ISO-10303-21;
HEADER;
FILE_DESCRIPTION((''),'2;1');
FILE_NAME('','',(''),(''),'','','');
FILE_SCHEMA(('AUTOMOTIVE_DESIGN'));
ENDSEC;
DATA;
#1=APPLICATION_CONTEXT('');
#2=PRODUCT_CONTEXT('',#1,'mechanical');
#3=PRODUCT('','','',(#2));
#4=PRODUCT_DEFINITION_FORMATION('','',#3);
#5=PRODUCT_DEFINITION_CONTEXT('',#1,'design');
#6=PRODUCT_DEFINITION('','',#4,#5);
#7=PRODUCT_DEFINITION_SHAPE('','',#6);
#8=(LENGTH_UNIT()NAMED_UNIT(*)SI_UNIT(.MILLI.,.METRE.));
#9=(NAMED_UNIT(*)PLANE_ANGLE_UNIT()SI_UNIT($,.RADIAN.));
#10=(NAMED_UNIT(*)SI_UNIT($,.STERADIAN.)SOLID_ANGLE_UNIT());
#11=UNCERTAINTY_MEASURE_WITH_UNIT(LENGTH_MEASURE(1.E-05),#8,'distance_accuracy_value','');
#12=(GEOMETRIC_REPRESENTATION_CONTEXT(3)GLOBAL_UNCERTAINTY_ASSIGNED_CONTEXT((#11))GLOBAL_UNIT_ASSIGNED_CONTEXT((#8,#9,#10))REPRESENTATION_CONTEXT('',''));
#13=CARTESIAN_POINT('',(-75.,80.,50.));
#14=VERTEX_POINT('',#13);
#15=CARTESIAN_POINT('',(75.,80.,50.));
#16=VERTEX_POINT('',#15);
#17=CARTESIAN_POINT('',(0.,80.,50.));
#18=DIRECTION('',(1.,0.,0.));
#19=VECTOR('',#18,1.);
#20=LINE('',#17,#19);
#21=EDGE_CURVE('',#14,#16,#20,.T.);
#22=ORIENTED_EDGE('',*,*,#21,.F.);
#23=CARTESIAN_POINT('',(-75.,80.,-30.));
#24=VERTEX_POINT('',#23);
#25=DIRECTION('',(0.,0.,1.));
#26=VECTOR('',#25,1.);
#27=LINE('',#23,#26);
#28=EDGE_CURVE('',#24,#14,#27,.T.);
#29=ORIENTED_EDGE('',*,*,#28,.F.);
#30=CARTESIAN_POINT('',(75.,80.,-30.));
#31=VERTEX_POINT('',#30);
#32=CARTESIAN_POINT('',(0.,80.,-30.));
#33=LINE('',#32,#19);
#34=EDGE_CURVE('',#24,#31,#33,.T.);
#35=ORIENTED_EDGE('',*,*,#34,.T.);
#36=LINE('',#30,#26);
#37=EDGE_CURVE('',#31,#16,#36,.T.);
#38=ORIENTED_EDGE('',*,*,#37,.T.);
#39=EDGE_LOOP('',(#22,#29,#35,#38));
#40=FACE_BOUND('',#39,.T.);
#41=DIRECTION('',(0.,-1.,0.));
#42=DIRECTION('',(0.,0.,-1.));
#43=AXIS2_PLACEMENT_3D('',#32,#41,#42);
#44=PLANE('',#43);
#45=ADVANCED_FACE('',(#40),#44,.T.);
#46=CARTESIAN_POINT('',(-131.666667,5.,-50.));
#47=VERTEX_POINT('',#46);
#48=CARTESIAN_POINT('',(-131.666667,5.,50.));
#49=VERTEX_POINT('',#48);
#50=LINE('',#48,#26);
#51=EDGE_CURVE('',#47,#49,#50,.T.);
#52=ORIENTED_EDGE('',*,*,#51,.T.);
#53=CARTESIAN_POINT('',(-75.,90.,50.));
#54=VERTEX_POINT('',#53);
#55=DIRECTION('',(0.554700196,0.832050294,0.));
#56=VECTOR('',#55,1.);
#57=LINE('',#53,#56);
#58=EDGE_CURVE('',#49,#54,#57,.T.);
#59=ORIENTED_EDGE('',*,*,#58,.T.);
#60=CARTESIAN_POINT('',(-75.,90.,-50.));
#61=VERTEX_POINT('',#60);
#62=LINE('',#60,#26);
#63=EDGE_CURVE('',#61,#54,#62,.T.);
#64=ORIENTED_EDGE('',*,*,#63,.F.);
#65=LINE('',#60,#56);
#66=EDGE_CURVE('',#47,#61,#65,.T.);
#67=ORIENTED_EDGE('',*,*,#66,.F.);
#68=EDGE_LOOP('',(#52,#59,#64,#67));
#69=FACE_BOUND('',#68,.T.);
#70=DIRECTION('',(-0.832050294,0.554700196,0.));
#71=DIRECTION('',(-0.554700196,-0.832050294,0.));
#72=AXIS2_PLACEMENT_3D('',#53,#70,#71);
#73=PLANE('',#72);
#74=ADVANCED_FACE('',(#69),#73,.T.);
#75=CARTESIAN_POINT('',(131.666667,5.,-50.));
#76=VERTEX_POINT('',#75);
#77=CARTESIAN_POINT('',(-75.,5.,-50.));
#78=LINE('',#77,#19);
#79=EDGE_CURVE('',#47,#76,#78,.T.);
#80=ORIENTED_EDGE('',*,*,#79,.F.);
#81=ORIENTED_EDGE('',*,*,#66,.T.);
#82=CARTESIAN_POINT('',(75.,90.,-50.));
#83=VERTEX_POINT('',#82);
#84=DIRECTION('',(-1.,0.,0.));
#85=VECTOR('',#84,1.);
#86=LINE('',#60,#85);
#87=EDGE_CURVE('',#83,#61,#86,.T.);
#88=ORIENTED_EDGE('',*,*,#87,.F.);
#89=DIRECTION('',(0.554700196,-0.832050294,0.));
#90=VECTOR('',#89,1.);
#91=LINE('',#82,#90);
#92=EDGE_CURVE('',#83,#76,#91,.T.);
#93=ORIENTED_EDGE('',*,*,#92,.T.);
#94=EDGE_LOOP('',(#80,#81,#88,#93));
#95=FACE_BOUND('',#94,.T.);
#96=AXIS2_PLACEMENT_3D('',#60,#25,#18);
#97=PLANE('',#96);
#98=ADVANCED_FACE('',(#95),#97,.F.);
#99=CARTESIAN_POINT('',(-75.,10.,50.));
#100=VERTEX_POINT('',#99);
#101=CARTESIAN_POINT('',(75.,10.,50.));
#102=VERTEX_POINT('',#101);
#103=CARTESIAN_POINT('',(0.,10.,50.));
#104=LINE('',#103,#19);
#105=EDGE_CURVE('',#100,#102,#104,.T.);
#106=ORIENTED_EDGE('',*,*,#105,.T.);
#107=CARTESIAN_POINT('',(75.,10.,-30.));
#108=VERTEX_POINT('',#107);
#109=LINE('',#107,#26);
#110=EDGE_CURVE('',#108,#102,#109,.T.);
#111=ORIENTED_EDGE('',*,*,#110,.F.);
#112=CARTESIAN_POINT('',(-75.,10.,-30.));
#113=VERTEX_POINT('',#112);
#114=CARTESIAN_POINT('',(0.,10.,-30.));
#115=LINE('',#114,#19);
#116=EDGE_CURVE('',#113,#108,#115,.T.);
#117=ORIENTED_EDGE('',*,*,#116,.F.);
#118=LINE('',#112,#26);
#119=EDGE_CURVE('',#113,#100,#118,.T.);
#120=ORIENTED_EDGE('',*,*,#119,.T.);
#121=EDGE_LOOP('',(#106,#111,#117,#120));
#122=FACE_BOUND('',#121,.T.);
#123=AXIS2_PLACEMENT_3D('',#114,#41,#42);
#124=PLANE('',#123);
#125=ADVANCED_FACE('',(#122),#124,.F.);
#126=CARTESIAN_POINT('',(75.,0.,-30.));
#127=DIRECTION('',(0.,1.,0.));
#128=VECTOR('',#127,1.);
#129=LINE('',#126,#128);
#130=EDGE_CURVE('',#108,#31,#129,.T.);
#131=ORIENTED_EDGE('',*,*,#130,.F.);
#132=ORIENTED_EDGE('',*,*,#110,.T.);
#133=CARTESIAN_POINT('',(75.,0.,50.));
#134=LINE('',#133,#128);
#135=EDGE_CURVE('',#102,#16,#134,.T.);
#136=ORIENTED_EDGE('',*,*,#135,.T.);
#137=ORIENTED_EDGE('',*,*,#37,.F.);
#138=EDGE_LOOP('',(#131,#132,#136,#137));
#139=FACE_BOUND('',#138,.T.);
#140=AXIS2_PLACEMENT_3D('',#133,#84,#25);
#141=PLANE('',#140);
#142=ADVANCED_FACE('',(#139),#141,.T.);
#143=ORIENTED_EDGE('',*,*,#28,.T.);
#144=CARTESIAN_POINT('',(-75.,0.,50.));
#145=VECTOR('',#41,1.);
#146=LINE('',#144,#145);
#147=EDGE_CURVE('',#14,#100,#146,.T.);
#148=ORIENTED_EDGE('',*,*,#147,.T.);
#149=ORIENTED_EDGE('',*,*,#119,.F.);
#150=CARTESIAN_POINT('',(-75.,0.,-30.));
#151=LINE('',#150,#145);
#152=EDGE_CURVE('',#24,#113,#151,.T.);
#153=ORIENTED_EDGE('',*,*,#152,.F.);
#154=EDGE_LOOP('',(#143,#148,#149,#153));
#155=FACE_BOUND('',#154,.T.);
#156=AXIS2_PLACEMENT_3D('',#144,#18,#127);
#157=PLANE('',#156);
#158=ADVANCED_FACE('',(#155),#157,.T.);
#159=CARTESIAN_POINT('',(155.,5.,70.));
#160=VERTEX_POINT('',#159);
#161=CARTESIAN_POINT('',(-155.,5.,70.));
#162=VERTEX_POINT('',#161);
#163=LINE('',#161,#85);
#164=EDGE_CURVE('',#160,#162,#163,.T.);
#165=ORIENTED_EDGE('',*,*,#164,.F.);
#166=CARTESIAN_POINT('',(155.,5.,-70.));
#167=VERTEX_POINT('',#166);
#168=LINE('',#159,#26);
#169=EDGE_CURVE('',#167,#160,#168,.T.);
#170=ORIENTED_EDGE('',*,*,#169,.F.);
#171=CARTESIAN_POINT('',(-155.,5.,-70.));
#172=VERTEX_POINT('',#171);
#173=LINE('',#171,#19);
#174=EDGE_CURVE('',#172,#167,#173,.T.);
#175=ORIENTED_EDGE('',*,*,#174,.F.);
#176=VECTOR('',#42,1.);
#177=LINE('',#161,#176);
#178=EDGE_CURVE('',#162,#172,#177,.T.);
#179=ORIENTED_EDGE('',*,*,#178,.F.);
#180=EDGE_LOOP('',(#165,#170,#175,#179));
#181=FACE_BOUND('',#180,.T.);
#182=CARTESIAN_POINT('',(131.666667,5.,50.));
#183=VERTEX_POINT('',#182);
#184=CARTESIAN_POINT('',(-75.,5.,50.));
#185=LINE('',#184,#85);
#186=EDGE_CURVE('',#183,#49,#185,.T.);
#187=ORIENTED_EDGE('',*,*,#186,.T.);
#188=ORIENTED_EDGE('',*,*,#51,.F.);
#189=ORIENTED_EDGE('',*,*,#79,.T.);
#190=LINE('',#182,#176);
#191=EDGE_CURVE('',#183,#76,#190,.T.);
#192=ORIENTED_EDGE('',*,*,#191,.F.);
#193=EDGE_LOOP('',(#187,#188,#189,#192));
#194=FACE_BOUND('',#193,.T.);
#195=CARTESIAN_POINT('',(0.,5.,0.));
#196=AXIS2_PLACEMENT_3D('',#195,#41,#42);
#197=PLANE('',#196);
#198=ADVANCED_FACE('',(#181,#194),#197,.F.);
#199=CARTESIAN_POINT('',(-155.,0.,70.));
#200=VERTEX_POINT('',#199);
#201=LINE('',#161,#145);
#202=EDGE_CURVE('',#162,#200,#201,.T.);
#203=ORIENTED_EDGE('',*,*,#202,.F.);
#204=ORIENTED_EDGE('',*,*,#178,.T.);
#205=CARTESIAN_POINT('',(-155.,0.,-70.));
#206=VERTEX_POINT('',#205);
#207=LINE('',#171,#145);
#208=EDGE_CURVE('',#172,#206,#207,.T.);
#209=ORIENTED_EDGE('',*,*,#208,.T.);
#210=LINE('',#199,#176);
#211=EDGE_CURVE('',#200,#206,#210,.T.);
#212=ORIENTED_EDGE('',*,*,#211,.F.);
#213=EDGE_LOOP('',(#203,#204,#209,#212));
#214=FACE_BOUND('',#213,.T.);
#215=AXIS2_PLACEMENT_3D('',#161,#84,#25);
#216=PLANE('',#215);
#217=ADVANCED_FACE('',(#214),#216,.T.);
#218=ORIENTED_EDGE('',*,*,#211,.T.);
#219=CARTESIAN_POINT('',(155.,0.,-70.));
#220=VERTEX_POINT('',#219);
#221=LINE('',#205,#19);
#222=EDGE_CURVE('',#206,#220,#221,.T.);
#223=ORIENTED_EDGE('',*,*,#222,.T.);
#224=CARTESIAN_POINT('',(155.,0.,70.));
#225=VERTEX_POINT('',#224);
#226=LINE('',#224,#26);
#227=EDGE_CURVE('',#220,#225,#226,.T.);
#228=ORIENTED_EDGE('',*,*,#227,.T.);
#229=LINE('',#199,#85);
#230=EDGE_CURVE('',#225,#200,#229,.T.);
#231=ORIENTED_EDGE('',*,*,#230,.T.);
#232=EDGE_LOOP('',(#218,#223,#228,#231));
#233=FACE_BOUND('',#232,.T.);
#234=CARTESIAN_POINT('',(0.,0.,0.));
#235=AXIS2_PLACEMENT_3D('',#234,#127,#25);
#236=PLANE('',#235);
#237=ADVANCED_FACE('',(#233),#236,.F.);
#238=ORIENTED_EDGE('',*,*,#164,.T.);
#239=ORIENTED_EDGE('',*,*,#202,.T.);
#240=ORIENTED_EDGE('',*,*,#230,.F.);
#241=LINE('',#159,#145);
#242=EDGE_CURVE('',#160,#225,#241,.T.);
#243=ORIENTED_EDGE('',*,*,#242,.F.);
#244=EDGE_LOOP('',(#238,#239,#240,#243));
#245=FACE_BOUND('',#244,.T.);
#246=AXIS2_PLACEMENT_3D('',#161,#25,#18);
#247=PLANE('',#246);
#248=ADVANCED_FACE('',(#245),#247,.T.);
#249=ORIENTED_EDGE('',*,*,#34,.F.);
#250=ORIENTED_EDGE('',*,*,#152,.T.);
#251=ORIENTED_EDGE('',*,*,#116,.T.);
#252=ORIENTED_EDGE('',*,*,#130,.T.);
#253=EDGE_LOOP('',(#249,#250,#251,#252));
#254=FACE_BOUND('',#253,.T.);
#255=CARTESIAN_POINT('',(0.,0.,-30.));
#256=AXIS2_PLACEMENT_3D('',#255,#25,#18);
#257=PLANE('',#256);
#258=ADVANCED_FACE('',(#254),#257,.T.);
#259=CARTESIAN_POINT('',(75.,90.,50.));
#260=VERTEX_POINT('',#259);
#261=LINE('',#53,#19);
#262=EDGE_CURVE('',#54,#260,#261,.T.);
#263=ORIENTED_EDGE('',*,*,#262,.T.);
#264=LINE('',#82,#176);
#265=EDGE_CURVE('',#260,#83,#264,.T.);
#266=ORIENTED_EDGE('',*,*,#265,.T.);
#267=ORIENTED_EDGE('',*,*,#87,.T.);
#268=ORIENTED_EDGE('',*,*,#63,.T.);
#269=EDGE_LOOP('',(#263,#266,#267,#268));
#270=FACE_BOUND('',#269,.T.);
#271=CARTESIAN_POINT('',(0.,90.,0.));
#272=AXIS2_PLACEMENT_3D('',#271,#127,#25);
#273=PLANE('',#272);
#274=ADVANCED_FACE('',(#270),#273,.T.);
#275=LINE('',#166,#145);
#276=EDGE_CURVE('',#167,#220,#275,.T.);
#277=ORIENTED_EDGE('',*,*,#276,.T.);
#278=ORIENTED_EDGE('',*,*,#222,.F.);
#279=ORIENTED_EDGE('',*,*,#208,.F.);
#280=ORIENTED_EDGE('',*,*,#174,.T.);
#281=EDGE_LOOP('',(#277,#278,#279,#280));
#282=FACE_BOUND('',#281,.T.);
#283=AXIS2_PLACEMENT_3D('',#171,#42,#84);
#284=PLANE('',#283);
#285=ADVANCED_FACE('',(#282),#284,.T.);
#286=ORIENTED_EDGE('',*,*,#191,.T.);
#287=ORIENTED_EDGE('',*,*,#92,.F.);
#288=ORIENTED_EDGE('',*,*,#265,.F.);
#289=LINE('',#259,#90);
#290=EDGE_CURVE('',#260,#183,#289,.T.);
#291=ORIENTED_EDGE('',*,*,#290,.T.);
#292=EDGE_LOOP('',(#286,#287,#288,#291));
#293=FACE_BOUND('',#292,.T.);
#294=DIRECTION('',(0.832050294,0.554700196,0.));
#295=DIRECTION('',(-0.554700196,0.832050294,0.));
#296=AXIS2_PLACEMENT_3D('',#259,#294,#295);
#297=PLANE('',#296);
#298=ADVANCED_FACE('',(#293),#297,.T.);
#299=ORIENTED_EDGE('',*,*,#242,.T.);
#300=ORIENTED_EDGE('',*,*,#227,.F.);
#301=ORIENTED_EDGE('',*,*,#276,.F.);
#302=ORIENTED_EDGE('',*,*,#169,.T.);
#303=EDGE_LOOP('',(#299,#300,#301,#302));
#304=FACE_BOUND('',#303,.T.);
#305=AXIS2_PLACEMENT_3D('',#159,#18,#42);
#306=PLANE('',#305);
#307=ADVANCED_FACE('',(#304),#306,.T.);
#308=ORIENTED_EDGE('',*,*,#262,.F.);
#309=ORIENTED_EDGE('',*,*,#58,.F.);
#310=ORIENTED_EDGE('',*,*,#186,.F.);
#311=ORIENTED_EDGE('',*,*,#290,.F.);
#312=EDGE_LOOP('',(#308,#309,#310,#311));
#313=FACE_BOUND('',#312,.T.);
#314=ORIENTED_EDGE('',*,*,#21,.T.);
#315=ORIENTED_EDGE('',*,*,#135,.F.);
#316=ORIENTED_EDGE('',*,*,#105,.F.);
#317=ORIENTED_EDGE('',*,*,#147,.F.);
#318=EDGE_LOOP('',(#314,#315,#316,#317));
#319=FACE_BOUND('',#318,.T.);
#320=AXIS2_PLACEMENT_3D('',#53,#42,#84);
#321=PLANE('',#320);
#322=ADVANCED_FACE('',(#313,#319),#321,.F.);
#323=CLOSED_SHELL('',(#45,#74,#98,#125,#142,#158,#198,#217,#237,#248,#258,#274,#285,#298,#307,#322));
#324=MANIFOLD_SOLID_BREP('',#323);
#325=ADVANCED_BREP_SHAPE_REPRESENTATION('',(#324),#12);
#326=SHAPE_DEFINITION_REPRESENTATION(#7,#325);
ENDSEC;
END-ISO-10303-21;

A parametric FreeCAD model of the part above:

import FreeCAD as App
import Part
import Sketcher

doc = App.newDocument("Part")
body = doc.addObject("PartDesign::Body", "Body")

# Sketch on XZ plane
sketch1 = body.newObject("Sketcher::SketchObject", "Sketch")
sketch1.AttachmentSupport = (doc.getObject("XZ_Plane"), [""])
sketch1.MapMode = "FlatFace"
sketch1.addGeometry([
    Part.LineSegment(App.Vector(-75, -50, 0), App.Vector(-75, 50, 0)),
    Part.LineSegment(App.Vector(-75, 50, 0), App.Vector(75, 50, 0)),
    Part.LineSegment(App.Vector(75, 50, 0), App.Vector(75, -50, 0)),
    Part.LineSegment(App.Vector(75, -50, 0), App.Vector(-75, -50, 0)),
], False)
sketch1.addConstraint([
    Sketcher.Constraint("Coincident", 0, 2, 1, 1),
    Sketcher.Constraint("Coincident", 1, 2, 2, 1),
    Sketcher.Constraint("Coincident", 2, 2, 3, 1),
    Sketcher.Constraint("Coincident", 3, 2, 0, 1),
    Sketcher.Constraint("Vertical", 0),
    Sketcher.Constraint("Horizontal", 1),
    Sketcher.Constraint("Vertical", 2),
    Sketcher.Constraint("Horizontal", 3),
    Sketcher.Constraint("Symmetric", 0, 2, 2, 2, -1, 1),
    Sketcher.Constraint("DistanceX", 1, 1, 1, 2, 150.0),
    Sketcher.Constraint("DistanceY", 0, 1, 0, 2, 100.0),
])
pad1 = body.newObject("PartDesign::Pad", "Pad")
pad1.Profile = sketch1
pad1.Length = 90
pad1.Reversed = True

# Sketch on XY plane
sketch2 = body.newObject("Sketcher::SketchObject", "Sketch001")
sketch2.AttachmentSupport = (doc.getObject("XY_Plane"), [""])
sketch2.MapMode = "FlatFace"
sketch2.AttachmentOffset = App.Placement(App.Vector(0, 0, 50), App.Rotation())
sketch2.addGeometry([
    Part.LineSegment(App.Vector(-75, 80, 0), App.Vector(-75, 10, 0)),
    Part.LineSegment(App.Vector(-75, 10, 0), App.Vector(75, 10, 0)),
    Part.LineSegment(App.Vector(75, 10, 0), App.Vector(75, 80, 0)),
    Part.LineSegment(App.Vector(75, 80, 0), App.Vector(-75, 80, 0)),
], False)
sketch2.addConstraint([
    Sketcher.Constraint("Coincident", 0, 2, 1, 1),
    Sketcher.Constraint("Coincident", 1, 2, 2, 1),
    Sketcher.Constraint("Coincident", 2, 2, 3, 1),
    Sketcher.Constraint("Coincident", 3, 2, 0, 1),
    Sketcher.Constraint("Vertical", 0),
    Sketcher.Constraint("Horizontal", 1),
    Sketcher.Constraint("Vertical", 2),
    Sketcher.Constraint("Horizontal", 3),
    Sketcher.Constraint("DistanceX", 1, 1, 1, 2, 150.0),
    Sketcher.Constraint("DistanceY", 0, 2, 0, 1, 70.0),
    Sketcher.Constraint("DistanceX", 0, 2, -1, 1, 75.0),
    Sketcher.Constraint("DistanceY", -1, 1, 0, 2, 10.0),
])
pocket1 = body.newObject("PartDesign::Pocket", "Pocket")
pocket1.Profile = sketch2
pocket1.Length = 80

# Sketch on XY plane
sketch3 = body.newObject("Sketcher::SketchObject", "Sketch002")
sketch3.AttachmentSupport = (doc.getObject("XY_Plane"), [""])
sketch3.MapMode = "FlatFace"
sketch3.AttachmentOffset = App.Placement(App.Vector(0, 0, -50), App.Rotation())
sketch3.addGeometry([
    Part.LineSegment(App.Vector(75, 90, 0), App.Vector(135, 0, 0)),
    Part.LineSegment(App.Vector(135, 0, 0), App.Vector(75, 0, 0)),
    Part.LineSegment(App.Vector(75, 0, 0), App.Vector(75, 90, 0)),
], False)
sketch3.addConstraint([
    Sketcher.Constraint("Coincident", 0, 2, 1, 1),
    Sketcher.Constraint("Coincident", 1, 2, 2, 1),
    Sketcher.Constraint("Coincident", 2, 2, 0, 1),
    Sketcher.Constraint("Horizontal", 1),
    Sketcher.Constraint("Vertical", 2),
    Sketcher.Constraint("PointOnObject", 0, 2, -1),
    Sketcher.Constraint("DistanceX", 1, 2, 1, 1, 60.0),
    Sketcher.Constraint("DistanceY", 2, 1, 2, 2, 90.0),
    Sketcher.Constraint("DistanceX", -1, 1, 0, 2, 135.0),
])
pad2 = body.newObject("PartDesign::Pad", "Pad001")
pad2.Profile = sketch3
pad2.Length = 100

# Sketch on XY plane
sketch4 = body.newObject("Sketcher::SketchObject", "Sketch003")
sketch4.AttachmentSupport = (doc.getObject("XY_Plane"), [""])
sketch4.MapMode = "FlatFace"
sketch4.AttachmentOffset = App.Placement(App.Vector(0, 0, -50), App.Rotation())
sketch4.addGeometry([
    Part.LineSegment(App.Vector(-135, 0, 0), App.Vector(-75, 90, 0)),
    Part.LineSegment(App.Vector(-75, 90, 0), App.Vector(-75, 0, 0)),
    Part.LineSegment(App.Vector(-75, 0, 0), App.Vector(-135, 0, 0)),
], False)
sketch4.addConstraint([
    Sketcher.Constraint("Coincident", 0, 2, 1, 1),
    Sketcher.Constraint("Coincident", 1, 2, 2, 1),
    Sketcher.Constraint("Coincident", 2, 2, 0, 1),
    Sketcher.Constraint("Vertical", 1),
    Sketcher.Constraint("Horizontal", 2),
    Sketcher.Constraint("PointOnObject", 1, 2, -1),
    Sketcher.Constraint("DistanceX", 2, 2, 2, 1, 60.0),
    Sketcher.Constraint("DistanceY", 1, 2, 1, 1, 90.0),
    Sketcher.Constraint("DistanceX", 0, 2, -1, 1, 75.0),
])
pad3 = body.newObject("PartDesign::Pad", "Pad002")
pad3.Profile = sketch4
pad3.Length = 100

# Sketch on XZ plane
sketch5 = body.newObject("Sketcher::SketchObject", "Sketch004")
sketch5.AttachmentSupport = (doc.getObject("XZ_Plane"), [""])
sketch5.MapMode = "FlatFace"
sketch5.addGeometry([
    Part.LineSegment(App.Vector(-155, 70, 0), App.Vector(-155, -70, 0)),
    Part.LineSegment(App.Vector(-155, -70, 0), App.Vector(155, -70, 0)),
    Part.LineSegment(App.Vector(155, -70, 0), App.Vector(155, 70, 0)),
    Part.LineSegment(App.Vector(155, 70, 0), App.Vector(-155, 70, 0)),
], False)
sketch5.addConstraint([
    Sketcher.Constraint("Coincident", 0, 2, 1, 1),
    Sketcher.Constraint("Coincident", 1, 2, 2, 1),
    Sketcher.Constraint("Coincident", 2, 2, 3, 1),
    Sketcher.Constraint("Coincident", 3, 2, 0, 1),
    Sketcher.Constraint("Vertical", 0),
    Sketcher.Constraint("Horizontal", 1),
    Sketcher.Constraint("Vertical", 2),
    Sketcher.Constraint("Horizontal", 3),
    Sketcher.Constraint("Symmetric", 0, 2, 2, 2, -1, 1),
    Sketcher.Constraint("DistanceX", 1, 1, 1, 2, 310.0),
    Sketcher.Constraint("DistanceY", 0, 2, 0, 1, 140.0),
])
pad4 = body.newObject("PartDesign::Pad", "Pad003")
pad4.Profile = sketch5
pad4.Length = 5
pad4.Reversed = True

doc.recompute()
